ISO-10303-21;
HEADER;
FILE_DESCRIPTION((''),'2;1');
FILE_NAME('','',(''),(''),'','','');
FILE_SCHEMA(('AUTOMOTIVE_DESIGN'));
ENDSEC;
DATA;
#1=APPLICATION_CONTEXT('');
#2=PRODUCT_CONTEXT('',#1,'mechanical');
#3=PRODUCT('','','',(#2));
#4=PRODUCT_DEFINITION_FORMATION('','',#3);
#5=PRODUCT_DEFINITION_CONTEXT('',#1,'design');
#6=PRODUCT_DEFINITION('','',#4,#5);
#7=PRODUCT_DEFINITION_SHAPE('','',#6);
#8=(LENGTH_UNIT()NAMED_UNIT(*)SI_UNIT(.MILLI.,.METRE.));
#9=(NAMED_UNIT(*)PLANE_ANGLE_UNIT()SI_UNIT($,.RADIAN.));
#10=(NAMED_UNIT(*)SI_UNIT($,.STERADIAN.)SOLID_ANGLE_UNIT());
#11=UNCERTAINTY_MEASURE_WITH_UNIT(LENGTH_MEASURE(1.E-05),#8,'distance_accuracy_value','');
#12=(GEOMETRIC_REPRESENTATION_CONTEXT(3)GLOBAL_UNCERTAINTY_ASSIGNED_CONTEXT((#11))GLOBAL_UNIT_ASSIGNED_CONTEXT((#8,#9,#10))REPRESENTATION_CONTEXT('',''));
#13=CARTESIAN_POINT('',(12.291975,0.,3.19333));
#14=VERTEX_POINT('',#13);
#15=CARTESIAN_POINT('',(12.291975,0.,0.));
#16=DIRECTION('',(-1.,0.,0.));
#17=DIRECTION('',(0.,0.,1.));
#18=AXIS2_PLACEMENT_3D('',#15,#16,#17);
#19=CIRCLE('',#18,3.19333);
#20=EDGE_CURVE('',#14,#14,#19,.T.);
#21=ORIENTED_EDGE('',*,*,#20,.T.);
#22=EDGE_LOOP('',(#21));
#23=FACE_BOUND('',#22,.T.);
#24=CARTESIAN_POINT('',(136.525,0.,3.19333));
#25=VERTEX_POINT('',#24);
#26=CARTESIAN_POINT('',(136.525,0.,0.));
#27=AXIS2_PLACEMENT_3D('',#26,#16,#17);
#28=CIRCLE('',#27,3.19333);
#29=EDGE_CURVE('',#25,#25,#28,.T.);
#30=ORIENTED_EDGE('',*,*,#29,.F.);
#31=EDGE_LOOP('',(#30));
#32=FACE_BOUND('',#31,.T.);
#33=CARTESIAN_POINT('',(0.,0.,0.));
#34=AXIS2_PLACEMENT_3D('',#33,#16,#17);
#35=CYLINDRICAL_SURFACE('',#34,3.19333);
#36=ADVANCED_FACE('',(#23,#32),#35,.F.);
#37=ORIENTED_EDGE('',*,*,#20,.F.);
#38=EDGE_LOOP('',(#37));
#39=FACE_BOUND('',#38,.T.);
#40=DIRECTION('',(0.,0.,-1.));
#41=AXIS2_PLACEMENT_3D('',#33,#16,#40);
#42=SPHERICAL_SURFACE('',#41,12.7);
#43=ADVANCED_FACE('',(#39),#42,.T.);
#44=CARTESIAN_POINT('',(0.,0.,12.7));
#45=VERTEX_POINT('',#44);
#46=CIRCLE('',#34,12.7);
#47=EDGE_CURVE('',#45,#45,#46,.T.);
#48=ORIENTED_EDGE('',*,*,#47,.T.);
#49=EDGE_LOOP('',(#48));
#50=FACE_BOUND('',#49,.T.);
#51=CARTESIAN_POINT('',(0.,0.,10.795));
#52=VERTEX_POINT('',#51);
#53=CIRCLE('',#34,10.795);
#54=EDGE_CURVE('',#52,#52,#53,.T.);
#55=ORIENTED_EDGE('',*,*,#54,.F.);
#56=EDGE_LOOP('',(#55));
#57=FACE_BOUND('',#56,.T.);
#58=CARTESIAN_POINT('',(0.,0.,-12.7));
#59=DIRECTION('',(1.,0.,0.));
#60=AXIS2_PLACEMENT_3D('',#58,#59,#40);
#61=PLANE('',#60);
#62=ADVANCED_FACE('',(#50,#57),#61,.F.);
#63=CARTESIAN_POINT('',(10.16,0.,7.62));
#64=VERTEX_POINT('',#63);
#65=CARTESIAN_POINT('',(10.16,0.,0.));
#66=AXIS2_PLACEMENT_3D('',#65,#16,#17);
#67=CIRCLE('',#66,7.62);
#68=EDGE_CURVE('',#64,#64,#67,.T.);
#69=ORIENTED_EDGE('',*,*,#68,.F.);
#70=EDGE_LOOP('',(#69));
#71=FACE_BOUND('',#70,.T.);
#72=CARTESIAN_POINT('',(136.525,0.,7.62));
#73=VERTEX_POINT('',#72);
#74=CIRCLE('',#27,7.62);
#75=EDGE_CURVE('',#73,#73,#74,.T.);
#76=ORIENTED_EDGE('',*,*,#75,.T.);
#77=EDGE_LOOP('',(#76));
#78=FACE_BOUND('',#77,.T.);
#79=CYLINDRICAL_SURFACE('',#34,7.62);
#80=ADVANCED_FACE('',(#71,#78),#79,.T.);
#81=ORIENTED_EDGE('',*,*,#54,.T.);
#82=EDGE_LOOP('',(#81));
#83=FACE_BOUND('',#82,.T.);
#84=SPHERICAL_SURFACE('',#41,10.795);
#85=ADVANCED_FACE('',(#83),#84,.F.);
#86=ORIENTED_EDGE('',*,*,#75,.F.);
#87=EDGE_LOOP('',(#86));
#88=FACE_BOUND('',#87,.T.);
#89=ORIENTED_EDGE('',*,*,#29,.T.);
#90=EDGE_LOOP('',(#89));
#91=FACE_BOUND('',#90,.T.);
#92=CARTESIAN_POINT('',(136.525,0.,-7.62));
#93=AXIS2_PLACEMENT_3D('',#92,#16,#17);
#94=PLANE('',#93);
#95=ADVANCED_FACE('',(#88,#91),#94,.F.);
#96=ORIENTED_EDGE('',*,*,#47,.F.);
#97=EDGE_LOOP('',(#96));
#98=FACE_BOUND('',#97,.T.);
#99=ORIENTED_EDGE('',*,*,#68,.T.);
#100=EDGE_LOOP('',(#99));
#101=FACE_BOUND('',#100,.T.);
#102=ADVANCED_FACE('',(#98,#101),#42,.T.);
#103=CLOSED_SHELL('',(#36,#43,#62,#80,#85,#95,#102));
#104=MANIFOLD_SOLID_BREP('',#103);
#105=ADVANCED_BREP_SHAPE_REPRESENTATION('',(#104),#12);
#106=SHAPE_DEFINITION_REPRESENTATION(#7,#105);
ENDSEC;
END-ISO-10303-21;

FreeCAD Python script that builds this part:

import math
import FreeCAD as App
import Part
import Sketcher

V = App.Vector
Q = App.Units.Quantity

doc = App.newDocument("Part")
body = doc.addObject("PartDesign::Body", "Body")

# Sketch on XZ plane
sketch1 = body.newObject("Sketcher::SketchObject", "Sketch")
sketch1.AttachmentSupport = (doc.getObject("XZ_Plane"), [""])
sketch1.MapMode = "FlatFace"
sketch1.addGeometry([
    Part.LineSegment(V(0, -12.7, 0), V(0, -10.8, 0)),  # 0
    Part.ArcOfCircle(Part.Circle(V(0, 0, 0), V(0, 0, 1), 10.8), math.radians(-90), math.radians(0)),  # 1
    Part.LineSegment(V(10.8, 0, 0), V(12.7, 0, 0)),  # 2
    Part.ArcOfCircle(Part.Circle(V(0, 0, 0), V(0, 0, 1), 12.7), math.radians(-14.56), math.radians(0)),  # 3
    Part.LineSegment(V(12.3, -3.2, 0), V(136.5, -3.2, 0)),  # 4
    Part.LineSegment(V(136.5, -3.2, 0), V(136.5, -7.6, 0)),  # 5
    Part.LineSegment(V(136.5, -7.6, 0), V(10.2, -7.6, 0)),  # 6
    Part.ArcOfCircle(Part.Circle(V(0, 0, 0), V(0, 0, 1), 12.7), math.radians(-90), math.radians(-37)),  # 7
], False)
sketch1.addConstraint([
    Sketcher.Constraint("Coincident", 0, 2, 1, 1),
    Sketcher.Constraint("Coincident", 1, 2, 2, 1),
    Sketcher.Constraint("Coincident", 2, 2, 3, 2),
    Sketcher.Constraint("Coincident", 3, 1, 4, 1),
    Sketcher.Constraint("Coincident", 4, 2, 5, 1),
    Sketcher.Constraint("Coincident", 5, 2, 6, 1),
    Sketcher.Constraint("Coincident", 6, 2, 7, 2),
    Sketcher.Constraint("Coincident", 7, 1, 0, 1),
    Sketcher.Constraint("Vertical", 0),
    Sketcher.Constraint("Horizontal", 2),
    Sketcher.Constraint("Horizontal", 4),
    Sketcher.Constraint("Vertical", 5),
    Sketcher.Constraint("Horizontal", 6),
    Sketcher.Constraint("Coincident", 1, 3, -1, 1),
    Sketcher.Constraint("Coincident", 3, 3, -1, 1),
    Sketcher.Constraint("Coincident", 7, 3, -1, 1),
    Sketcher.Constraint("Equal", 3, 7),
    Sketcher.Constraint("PointOnObject", 0, 2, -2),
    Sketcher.Constraint("PointOnObject", 1, 2, -1),
    Sketcher.Constraint("Radius", 3, Q("0.5 in")),
    Sketcher.Constraint("Radius", 1, Q("0.425 in")),
    Sketcher.Constraint("DistanceY", 5, 2, -1, 1, Q("0.3 in")),
    Sketcher.Constraint("DistanceX", 6, 2, 6, 1, Q("4.975 in")),
    Sketcher.Constraint("DistanceY", 5, 2, 5, 1, Q("4.42667 mm")),
])
revolution = body.newObject("PartDesign::Revolution", "Revolution")
revolution.Profile = sketch1
revolution.ReferenceAxis = (sketch1, ["H_Axis"])
revolution.Angle = 360

doc.recompute()
